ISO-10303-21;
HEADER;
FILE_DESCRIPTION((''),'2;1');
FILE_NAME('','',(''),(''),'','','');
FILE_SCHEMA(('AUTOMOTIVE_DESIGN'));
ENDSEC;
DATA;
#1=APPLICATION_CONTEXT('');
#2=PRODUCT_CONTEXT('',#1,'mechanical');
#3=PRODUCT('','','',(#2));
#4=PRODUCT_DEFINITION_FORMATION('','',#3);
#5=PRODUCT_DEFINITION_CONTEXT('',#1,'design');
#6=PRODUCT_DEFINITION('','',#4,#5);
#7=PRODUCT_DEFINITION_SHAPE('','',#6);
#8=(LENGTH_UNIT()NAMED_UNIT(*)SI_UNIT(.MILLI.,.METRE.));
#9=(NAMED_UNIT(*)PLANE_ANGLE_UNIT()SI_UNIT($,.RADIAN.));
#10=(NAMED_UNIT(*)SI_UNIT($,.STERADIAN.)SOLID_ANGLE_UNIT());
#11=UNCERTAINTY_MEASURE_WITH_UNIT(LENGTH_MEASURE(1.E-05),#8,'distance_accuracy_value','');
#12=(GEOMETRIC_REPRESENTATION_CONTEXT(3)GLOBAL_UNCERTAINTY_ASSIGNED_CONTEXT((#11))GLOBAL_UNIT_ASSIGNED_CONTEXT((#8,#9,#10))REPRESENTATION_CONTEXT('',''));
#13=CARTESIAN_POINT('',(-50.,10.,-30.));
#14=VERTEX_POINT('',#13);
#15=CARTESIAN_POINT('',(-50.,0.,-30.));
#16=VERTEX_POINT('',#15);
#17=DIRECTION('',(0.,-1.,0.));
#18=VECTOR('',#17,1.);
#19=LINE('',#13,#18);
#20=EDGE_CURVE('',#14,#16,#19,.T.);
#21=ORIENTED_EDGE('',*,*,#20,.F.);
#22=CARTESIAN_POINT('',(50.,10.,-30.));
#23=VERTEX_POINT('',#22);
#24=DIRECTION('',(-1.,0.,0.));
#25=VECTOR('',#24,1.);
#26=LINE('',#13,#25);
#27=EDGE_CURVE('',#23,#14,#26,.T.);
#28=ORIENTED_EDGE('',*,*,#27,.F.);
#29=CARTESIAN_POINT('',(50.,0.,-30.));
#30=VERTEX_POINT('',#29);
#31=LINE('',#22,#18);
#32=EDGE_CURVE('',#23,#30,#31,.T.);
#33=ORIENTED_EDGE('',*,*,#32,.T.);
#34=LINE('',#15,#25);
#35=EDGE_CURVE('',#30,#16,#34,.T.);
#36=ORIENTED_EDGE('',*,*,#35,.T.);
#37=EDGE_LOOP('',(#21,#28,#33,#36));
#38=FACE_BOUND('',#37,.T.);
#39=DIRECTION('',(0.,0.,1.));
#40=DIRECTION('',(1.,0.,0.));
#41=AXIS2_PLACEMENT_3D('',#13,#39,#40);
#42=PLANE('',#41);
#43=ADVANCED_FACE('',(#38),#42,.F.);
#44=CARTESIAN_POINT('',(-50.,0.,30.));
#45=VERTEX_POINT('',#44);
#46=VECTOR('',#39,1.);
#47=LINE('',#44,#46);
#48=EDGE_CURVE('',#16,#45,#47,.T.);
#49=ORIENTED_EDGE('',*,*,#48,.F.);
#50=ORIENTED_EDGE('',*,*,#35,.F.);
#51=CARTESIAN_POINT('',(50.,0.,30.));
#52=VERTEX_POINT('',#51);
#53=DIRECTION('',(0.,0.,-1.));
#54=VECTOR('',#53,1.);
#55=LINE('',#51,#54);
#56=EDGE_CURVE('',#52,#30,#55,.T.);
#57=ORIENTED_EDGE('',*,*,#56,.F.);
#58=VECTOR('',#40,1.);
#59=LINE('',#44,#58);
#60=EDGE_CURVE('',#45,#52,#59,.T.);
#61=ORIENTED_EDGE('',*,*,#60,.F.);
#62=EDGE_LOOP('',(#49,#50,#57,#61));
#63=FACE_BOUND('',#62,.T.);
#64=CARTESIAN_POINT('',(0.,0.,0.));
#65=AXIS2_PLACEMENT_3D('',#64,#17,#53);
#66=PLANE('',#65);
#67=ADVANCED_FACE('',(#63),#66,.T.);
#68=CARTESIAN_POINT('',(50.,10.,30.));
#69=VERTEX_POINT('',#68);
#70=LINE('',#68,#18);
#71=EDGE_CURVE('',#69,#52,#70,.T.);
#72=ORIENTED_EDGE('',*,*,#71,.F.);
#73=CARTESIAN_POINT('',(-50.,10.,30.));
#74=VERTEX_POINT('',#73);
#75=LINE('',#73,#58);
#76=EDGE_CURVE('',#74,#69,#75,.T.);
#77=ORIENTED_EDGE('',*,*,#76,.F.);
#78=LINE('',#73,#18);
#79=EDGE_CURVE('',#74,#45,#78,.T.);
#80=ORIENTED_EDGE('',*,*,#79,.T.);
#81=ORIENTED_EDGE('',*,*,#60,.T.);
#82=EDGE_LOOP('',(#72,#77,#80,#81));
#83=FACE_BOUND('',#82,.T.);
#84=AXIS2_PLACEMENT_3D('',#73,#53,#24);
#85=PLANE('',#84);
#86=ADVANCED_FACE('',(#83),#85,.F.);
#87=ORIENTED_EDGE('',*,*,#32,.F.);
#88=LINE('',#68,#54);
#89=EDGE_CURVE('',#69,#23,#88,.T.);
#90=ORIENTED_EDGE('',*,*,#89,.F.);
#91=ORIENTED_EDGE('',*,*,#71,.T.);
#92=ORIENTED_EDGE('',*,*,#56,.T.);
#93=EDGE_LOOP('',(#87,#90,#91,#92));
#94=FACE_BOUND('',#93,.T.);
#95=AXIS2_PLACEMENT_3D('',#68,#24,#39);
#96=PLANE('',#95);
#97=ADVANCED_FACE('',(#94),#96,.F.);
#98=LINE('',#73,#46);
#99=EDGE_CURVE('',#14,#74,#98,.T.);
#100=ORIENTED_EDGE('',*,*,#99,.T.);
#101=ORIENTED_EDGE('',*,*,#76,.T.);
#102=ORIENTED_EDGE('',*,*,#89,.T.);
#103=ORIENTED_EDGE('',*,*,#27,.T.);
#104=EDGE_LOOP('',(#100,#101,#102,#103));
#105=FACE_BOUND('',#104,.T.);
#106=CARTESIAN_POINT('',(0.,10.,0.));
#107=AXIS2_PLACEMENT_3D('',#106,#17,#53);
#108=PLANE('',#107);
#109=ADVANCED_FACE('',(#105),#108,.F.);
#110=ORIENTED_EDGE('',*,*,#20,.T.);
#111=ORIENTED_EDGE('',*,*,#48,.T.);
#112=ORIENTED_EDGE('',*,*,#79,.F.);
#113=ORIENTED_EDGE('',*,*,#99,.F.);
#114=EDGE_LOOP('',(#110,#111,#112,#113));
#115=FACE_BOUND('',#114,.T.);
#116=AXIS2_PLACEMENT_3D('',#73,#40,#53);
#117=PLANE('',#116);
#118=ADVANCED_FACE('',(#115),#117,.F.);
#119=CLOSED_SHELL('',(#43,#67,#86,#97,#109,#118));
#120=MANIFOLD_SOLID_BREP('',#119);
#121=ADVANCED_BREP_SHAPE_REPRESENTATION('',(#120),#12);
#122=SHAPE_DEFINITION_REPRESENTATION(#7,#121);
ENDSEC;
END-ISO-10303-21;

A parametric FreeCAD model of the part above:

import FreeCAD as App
import Part
import Sketcher

V = App.Vector
Q = App.Units.Quantity


def add_polygon(sketch, points):
    """Adds a closed chain of lines whose ends are joined by coincident constraints."""
    first, n = sketch.GeometryCount, len(points)
    for a, b in zip(points, points[1:] + points[:1]):
        sketch.addGeometry(Part.LineSegment(App.Vector(*a, 0), App.Vector(*b, 0)), False)
    for i in range(n):
        sketch.addConstraint(Sketcher.Constraint("Coincident", first + i, 2, first + (i + 1) % n, 1))

doc = App.newDocument("Part")
body = doc.addObject("PartDesign::Body", "Body")

# Sketch on XZ plane
sketch1 = body.newObject("Sketcher::SketchObject", "Sketch")
sketch1.AttachmentSupport = (doc.getObject("XZ_Plane"), [""])
sketch1.MapMode = "FlatFace"
add_polygon(sketch1, [(-50, -30), (-50, 30), (50, 30), (50, -30)])  # lines 0-3
sketch1.addConstraint(Sketcher.Constraint("Vertical", 0))
sketch1.addConstraint(Sketcher.Constraint("Horizontal", 1))
sketch1.addConstraint(Sketcher.Constraint("Vertical", 2))
sketch1.addConstraint(Sketcher.Constraint("Horizontal", 3))
sketch1.addConstraint(Sketcher.Constraint("Symmetric", 0, 2, 2, 2, -1, 1))
sketch1.addConstraint(Sketcher.Constraint("DistanceX", 1, 1, 1, 2, Q("100 mm")))
sketch1.addConstraint(Sketcher.Constraint("DistanceY", 0, 1, 0, 2, Q("60 mm")))
pad1 = body.newObject("PartDesign::Pad", "Pad")
pad1.Profile = sketch1
pad1.Length = 10
pad1.Reversed = True

doc.recompute()
